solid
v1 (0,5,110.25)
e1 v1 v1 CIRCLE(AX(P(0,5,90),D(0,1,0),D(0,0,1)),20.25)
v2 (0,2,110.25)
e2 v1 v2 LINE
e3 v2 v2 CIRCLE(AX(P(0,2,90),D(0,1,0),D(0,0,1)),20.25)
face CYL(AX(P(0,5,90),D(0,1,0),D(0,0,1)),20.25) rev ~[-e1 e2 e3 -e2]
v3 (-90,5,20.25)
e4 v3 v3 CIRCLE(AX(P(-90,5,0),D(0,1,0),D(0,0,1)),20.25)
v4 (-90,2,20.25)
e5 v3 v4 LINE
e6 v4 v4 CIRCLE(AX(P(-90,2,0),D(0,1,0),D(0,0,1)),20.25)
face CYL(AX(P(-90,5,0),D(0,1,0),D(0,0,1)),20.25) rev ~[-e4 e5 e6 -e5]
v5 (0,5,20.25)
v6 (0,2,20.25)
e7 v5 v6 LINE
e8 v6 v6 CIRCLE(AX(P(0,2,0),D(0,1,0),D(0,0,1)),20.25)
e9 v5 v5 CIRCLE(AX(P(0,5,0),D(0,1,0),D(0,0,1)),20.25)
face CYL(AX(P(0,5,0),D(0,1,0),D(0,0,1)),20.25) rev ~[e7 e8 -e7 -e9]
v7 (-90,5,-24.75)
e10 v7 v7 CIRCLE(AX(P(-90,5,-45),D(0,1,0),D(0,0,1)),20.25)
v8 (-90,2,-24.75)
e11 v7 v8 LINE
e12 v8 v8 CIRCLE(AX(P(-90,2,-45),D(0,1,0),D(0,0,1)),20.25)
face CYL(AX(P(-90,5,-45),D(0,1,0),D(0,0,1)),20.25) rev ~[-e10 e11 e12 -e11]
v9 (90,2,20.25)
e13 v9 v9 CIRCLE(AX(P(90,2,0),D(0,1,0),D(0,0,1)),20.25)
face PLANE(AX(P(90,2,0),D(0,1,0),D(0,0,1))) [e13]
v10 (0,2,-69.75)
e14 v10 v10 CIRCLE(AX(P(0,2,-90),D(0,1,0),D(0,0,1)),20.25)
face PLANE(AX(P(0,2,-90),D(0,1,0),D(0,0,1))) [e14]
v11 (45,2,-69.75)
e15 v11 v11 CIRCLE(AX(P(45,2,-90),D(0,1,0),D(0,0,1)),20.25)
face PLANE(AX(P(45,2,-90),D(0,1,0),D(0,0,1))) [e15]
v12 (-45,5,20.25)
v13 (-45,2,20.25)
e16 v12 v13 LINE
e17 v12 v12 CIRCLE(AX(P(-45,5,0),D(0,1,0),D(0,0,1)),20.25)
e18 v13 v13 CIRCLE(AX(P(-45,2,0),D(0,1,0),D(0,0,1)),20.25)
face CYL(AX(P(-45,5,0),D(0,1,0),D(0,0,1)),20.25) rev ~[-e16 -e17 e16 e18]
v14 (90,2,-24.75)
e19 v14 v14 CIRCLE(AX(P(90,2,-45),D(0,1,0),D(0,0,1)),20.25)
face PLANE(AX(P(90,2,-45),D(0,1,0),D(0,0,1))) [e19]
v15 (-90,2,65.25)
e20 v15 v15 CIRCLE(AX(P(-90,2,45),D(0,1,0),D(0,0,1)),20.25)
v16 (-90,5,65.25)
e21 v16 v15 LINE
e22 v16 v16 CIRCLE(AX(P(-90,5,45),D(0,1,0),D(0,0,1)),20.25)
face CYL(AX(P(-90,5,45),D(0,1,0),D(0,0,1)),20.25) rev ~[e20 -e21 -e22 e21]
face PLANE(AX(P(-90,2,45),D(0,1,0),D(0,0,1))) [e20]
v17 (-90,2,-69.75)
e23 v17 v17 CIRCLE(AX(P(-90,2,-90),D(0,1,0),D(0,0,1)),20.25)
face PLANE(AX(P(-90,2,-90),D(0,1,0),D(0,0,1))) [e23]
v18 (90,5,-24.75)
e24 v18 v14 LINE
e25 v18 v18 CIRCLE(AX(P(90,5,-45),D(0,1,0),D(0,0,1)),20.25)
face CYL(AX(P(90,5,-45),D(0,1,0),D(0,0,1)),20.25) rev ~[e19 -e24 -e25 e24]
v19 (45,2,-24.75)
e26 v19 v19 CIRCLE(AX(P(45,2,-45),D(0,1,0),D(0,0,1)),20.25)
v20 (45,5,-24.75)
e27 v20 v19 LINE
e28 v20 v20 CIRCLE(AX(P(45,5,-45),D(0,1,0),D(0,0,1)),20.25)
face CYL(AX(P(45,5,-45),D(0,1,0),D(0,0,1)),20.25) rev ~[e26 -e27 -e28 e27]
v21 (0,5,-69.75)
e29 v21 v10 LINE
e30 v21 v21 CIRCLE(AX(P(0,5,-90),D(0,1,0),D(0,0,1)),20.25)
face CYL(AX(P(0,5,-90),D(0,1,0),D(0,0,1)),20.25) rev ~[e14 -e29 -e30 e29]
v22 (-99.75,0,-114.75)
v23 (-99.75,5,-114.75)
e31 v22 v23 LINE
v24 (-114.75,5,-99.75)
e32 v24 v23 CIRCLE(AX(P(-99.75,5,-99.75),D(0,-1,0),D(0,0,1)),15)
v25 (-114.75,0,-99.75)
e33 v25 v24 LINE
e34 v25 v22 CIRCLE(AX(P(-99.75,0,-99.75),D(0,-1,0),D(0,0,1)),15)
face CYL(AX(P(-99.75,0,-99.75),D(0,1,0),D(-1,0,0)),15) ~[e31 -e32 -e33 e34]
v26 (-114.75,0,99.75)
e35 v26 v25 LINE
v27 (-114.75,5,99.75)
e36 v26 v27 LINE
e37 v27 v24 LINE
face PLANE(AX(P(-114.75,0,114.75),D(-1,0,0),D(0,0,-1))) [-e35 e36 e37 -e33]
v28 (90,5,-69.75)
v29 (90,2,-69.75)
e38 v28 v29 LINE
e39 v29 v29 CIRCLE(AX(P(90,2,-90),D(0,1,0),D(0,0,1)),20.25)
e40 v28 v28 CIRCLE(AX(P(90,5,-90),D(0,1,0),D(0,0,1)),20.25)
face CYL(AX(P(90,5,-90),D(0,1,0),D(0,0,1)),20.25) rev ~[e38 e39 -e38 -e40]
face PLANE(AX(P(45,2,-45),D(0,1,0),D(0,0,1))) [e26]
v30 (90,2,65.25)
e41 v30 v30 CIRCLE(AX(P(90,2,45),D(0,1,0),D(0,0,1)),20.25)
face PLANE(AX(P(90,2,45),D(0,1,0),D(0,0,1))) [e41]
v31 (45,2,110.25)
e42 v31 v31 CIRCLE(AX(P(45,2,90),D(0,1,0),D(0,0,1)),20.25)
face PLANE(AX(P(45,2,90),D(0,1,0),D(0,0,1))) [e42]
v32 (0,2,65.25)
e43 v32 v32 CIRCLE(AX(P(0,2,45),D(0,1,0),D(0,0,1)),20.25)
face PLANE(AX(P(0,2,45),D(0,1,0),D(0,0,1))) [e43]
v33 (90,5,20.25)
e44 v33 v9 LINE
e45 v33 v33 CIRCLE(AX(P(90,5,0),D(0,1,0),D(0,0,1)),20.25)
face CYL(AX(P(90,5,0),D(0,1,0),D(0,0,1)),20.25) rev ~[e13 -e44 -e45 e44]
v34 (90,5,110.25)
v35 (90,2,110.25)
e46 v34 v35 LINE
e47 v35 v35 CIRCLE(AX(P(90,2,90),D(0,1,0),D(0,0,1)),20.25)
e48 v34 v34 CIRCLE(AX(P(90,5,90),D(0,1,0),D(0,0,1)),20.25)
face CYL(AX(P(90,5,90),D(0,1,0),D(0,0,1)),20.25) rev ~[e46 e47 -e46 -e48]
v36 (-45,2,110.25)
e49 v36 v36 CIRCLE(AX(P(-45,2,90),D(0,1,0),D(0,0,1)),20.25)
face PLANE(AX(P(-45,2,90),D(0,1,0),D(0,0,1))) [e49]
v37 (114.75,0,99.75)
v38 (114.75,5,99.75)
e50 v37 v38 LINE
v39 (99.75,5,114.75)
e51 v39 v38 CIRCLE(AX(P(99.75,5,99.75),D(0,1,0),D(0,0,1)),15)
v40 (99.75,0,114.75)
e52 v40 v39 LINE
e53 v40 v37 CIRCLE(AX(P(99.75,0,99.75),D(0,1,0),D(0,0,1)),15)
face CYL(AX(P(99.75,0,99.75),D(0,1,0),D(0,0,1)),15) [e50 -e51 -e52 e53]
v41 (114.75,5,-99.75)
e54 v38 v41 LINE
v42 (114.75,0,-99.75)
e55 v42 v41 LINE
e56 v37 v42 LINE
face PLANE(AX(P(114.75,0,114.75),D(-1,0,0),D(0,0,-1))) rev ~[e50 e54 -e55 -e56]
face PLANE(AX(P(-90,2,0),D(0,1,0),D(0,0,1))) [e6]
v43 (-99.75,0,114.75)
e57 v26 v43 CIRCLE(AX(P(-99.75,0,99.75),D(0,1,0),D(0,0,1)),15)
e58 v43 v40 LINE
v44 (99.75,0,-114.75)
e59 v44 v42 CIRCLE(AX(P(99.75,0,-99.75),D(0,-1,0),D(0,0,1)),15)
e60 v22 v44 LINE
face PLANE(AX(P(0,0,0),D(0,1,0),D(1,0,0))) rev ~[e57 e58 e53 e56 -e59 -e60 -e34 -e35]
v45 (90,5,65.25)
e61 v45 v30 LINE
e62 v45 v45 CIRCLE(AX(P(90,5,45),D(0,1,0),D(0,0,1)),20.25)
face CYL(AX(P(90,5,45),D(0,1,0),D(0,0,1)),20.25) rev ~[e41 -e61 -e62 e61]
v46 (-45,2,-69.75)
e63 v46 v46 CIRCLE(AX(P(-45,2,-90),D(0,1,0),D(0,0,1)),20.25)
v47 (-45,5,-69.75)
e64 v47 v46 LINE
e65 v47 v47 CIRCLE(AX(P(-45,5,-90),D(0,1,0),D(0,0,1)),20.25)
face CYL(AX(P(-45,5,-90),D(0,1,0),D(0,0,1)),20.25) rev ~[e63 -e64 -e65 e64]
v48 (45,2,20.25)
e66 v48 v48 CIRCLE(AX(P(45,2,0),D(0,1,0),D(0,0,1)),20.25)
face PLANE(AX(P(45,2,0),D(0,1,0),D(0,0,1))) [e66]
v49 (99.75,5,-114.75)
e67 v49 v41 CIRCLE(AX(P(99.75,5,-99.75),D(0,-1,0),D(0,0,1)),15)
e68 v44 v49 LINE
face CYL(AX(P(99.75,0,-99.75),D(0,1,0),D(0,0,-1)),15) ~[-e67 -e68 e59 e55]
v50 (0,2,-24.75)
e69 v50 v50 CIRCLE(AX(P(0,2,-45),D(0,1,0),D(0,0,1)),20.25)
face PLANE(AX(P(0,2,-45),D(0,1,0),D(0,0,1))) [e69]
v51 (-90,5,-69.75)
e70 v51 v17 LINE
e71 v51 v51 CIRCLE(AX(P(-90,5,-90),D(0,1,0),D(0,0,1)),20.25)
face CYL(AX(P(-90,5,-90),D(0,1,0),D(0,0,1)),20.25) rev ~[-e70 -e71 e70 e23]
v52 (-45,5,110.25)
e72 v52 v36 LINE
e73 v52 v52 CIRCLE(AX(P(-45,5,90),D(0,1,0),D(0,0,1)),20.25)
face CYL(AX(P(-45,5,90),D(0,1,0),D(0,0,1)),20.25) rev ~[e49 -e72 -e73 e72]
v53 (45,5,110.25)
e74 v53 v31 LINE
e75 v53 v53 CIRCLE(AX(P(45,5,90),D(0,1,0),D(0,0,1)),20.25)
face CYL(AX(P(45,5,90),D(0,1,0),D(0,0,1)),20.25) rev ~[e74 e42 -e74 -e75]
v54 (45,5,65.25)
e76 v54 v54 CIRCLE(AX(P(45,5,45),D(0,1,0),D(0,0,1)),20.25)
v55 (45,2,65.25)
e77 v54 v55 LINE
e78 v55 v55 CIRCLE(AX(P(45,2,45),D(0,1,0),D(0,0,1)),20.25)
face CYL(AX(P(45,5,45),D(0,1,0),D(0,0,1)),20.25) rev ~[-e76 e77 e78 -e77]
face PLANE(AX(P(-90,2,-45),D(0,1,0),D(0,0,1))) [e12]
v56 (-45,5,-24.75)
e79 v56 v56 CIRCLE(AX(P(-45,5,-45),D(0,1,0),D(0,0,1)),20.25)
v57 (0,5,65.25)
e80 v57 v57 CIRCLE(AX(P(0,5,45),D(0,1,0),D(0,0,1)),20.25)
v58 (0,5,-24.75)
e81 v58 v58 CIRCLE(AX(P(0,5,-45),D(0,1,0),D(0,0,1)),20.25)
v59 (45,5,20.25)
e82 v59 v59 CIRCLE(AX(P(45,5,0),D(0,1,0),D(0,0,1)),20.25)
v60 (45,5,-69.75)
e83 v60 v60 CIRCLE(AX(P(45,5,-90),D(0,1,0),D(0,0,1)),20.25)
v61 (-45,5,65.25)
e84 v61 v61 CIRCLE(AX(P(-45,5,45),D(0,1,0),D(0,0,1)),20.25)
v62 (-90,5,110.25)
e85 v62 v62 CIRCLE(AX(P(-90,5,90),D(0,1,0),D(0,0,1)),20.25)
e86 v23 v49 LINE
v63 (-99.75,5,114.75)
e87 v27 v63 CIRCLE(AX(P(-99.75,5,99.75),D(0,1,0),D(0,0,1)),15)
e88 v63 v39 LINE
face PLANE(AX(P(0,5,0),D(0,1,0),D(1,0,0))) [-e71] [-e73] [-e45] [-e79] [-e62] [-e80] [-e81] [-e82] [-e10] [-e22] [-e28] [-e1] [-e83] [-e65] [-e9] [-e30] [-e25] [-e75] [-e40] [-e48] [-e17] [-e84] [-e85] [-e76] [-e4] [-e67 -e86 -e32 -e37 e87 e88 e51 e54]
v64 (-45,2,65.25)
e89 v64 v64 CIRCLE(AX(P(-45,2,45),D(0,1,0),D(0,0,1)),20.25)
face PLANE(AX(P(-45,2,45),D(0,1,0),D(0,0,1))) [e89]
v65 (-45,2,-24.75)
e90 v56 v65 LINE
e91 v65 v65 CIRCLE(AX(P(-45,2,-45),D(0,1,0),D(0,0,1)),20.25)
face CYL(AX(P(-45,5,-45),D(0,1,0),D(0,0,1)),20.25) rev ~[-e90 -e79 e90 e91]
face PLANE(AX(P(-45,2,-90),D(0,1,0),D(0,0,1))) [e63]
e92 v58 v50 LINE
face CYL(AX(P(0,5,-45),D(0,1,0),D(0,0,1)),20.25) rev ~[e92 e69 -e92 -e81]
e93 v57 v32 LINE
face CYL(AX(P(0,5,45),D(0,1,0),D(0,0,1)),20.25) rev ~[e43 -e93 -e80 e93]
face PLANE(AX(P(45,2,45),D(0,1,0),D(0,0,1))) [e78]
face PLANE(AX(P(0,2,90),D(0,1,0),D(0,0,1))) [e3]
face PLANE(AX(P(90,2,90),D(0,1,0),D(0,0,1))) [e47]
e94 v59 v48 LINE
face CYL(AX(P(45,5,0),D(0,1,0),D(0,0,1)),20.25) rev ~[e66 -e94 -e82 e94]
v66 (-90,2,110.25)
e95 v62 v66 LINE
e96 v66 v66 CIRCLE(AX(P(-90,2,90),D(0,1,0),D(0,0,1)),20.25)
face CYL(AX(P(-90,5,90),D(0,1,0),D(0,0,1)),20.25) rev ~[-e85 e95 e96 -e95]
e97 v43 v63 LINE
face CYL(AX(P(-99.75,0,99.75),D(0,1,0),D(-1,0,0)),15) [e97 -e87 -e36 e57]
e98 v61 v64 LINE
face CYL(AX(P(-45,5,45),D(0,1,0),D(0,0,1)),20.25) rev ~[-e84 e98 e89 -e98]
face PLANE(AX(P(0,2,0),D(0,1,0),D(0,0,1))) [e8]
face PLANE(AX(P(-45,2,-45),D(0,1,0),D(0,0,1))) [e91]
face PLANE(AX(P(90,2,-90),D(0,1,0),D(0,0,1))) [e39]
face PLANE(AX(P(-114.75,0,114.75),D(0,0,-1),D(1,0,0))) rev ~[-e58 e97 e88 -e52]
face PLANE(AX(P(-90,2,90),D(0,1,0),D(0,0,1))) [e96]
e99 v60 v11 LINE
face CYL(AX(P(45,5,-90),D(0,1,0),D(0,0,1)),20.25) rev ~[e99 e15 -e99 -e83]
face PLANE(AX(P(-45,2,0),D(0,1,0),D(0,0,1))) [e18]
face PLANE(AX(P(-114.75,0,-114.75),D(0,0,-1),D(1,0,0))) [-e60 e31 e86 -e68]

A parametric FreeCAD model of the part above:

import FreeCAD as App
import Part
import Sketcher


def edges_at(feature, points):
    """Names of the edges that pass closest to the given points."""
    edges = feature.Shape.Edges
    near = lambda p: min(range(len(edges)), key=lambda i: edges[i].distToShape(Part.Vertex(*p))[0])
    return sorted({f"Edge{near(p) + 1}" for p in points})


def add_polygon(sketch, points):
    """Adds a closed chain of lines whose ends are joined by coincident constraints."""
    first, n = sketch.GeometryCount, len(points)
    for a, b in zip(points, points[1:] + points[:1]):
        sketch.addGeometry(Part.LineSegment(App.Vector(*a, 0), App.Vector(*b, 0)), False)
    for i in range(n):
        sketch.addConstraint(Sketcher.Constraint("Coincident", first + i, 2, first + (i + 1) % n, 1))

doc = App.newDocument("Part")
body = doc.addObject("PartDesign::Body", "Body")

# Sketch on XZ plane
sketch1 = body.newObject("Sketcher::SketchObject", "Sketch")
sketch1.AttachmentSupport = (doc.getObject("XZ_Plane"), [""])
sketch1.MapMode = "FlatFace"
add_polygon(sketch1, [(-115, -115), (-115, 115), (115, 115), (115, -115)])  # lines 0-3
sketch1.addConstraint(Sketcher.Constraint("Vertical", 0))
sketch1.addConstraint(Sketcher.Constraint("Horizontal", 1))
sketch1.addConstraint(Sketcher.Constraint("Vertical", 2))
sketch1.addConstraint(Sketcher.Constraint("Horizontal", 3))
sketch1.addConstraint(Sketcher.Constraint("Symmetric", 0, 2, 2, 2, -1, 1))
sketch1.addConstraint(Sketcher.Constraint("Equal", 3, 0))
sketch1.addConstraint(Sketcher.Constraint("DistanceX", 1, 1, 1, 2, 229.5))
pad1 = body.newObject("PartDesign::Pad", "Pad")
pad1.Profile = sketch1
pad1.Length = 5
pad1.Reversed = True

# Sketch on XZ plane
sketch2 = body.newObject("Sketcher::SketchObject", "Sketch001")
sketch2.AttachmentSupport = (doc.getObject("XZ_Plane"), [""])
sketch2.MapMode = "FlatFace"
sketch2.AttachmentOffset = App.Placement(App.Vector(0, 0, -5), App.Rotation())
sketch2.addGeometry(Part.Circle(App.Vector(-90, -90, 0), App.Vector(0, 0, 1), 20), False)
sketch2.addGeometry(Part.Circle(App.Vector(-45, -90, 0), App.Vector(0, 0, 1), 20), False)
sketch2.addGeometry(Part.Circle(App.Vector(0, -90, 0), App.Vector(0, 0, 1), 20), False)
sketch2.addGeometry(Part.Circle(App.Vector(45, -90, 0), App.Vector(0, 0, 1), 20), False)
sketch2.addGeometry(Part.Circle(App.Vector(90, -90, 0), App.Vector(0, 0, 1), 20), False)
sketch2.addGeometry(Part.Circle(App.Vector(-45, -45, 0), App.Vector(0, 0, 1), 20), False)
sketch2.addGeometry(Part.Circle(App.Vector(0, -45, 0), App.Vector(0, 0, 1), 20), False)
sketch2.addGeometry(Part.Circle(App.Vector(45, -45, 0), App.Vector(0, 0, 1), 20), False)
sketch2.addGeometry(Part.Circle(App.Vector(90, -45, 0), App.Vector(0, 0, 1), 20), False)
sketch2.addGeometry(Part.Circle(App.Vector(-45, 0, 0), App.Vector(0, 0, 1), 20), False)
sketch2.addGeometry(Part.Circle(App.Vector(0, 0, 0), App.Vector(0, 0, 1), 20), False)
sketch2.addGeometry(Part.Circle(App.Vector(45, 0, 0), App.Vector(0, 0, 1), 20), False)
sketch2.addGeometry(Part.Circle(App.Vector(90, 0, 0), App.Vector(0, 0, 1), 20), False)
sketch2.addGeometry(Part.Circle(App.Vector(-45, 45, 0), App.Vector(0, 0, 1), 20), False)
sketch2.addGeometry(Part.Circle(App.Vector(0, 45, 0), App.Vector(0, 0, 1), 20), False)
sketch2.addGeometry(Part.Circle(App.Vector(45, 45, 0), App.Vector(0, 0, 1), 20), False)
sketch2.addGeometry(Part.Circle(App.Vector(90, 45, 0), App.Vector(0, 0, 1), 20), False)
sketch2.addGeometry(Part.Circle(App.Vector(-45, 90, 0), App.Vector(0, 0, 1), 20), False)
sketch2.addGeometry(Part.Circle(App.Vector(0, 90, 0), App.Vector(0, 0, 1), 20), False)
sketch2.addGeometry(Part.Circle(App.Vector(45, 90, 0), App.Vector(0, 0, 1), 20), False)
sketch2.addGeometry(Part.Circle(App.Vector(90, 90, 0), App.Vector(0, 0, 1), 20), False)
sketch2.addGeometry(Part.Circle(App.Vector(-90, -45, 0), App.Vector(0, 0, 1), 20), False)
sketch2.addGeometry(Part.Circle(App.Vector(-90, 0, 0), App.Vector(0, 0, 1), 20), False)
sketch2.addGeometry(Part.Circle(App.Vector(-90, 45, 0), App.Vector(0, 0, 1), 20), False)
sketch2.addGeometry(Part.Circle(App.Vector(-90, 90, 0), App.Vector(0, 0, 1), 20), False)
sketch2.addConstraint(Sketcher.Constraint("Coincident", 10, 3, -1, 1))
sketch2.addConstraint(Sketcher.Constraint("Equal", 0, 1))
sketch2.addConstraint(Sketcher.Constraint("Equal", 1, 2))
sketch2.addConstraint(Sketcher.Constraint("Equal", 2, 3))
sketch2.addConstraint(Sketcher.Constraint("Equal", 3, 4))
sketch2.addConstraint(Sketcher.Constraint("Equal", 4, 5))
sketch2.addConstraint(Sketcher.Constraint("Equal", 5, 6))
sketch2.addConstraint(Sketcher.Constraint("Equal", 6, 7))
sketch2.addConstraint(Sketcher.Constraint("Equal", 7, 8))
sketch2.addConstraint(Sketcher.Constraint("Equal", 8, 9))
sketch2.addConstraint(Sketcher.Constraint("Equal", 9, 10))
sketch2.addConstraint(Sketcher.Constraint("Equal", 10, 11))
sketch2.addConstraint(Sketcher.Constraint("Equal", 11, 12))
sketch2.addConstraint(Sketcher.Constraint("Equal", 12, 13))
sketch2.addConstraint(Sketcher.Constraint("Equal", 13, 14))
sketch2.addConstraint(Sketcher.Constraint("Equal", 14, 15))
sketch2.addConstraint(Sketcher.Constraint("Equal", 15, 16))
sketch2.addConstraint(Sketcher.Constraint("Equal", 16, 17))
sketch2.addConstraint(Sketcher.Constraint("Equal", 17, 18))
sketch2.addConstraint(Sketcher.Constraint("Equal", 18, 19))
sketch2.addConstraint(Sketcher.Constraint("Equal", 19, 20))
sketch2.addConstraint(Sketcher.Constraint("Equal", 20, 21))
sketch2.addConstraint(Sketcher.Constraint("Equal", 21, 22))
sketch2.addConstraint(Sketcher.Constraint("Equal", 22, 23))
sketch2.addConstraint(Sketcher.Constraint("Equal", 23, 24))
sketch2.addConstraint(Sketcher.Constraint("Symmetric", 9, 3, 11, 3, -1, 1))
sketch2.addConstraint(Sketcher.Constraint("Symmetric", 7, 3, 13, 3, -1, 1))
sketch2.addConstraint(Sketcher.Constraint("Symmetric", 6, 3, 14, 3, -1, 1))
sketch2.addConstraint(Sketcher.Constraint("Symmetric", 5, 3, 15, 3, -1, 1))
sketch2.addConstraint(Sketcher.Constraint("Symmetric", 3, 3, 17, 3, -1, 1))
sketch2.addConstraint(Sketcher.Constraint("Symmetric", 2, 3, 18, 3, -1, 1))
sketch2.addConstraint(Sketcher.Constraint("Symmetric", 1, 3, 19, 3, -1, 1))
sketch2.addConstraint(Sketcher.Constraint("Symmetric", 0, 3, 20, 3, -1, 1))
sketch2.addConstraint(Sketcher.Constraint("Symmetric", 16, 3, 21, 3, -1, 1))
sketch2.addConstraint(Sketcher.Constraint("Symmetric", 12, 3, 22, 3, -1, 1))
sketch2.addConstraint(Sketcher.Constraint("Symmetric", 8, 3, 23, 3, -1, 1))
sketch2.addConstraint(Sketcher.Constraint("Symmetric", 4, 3, 24, 3, -1, 1))
sketch2.addConstraint(Sketcher.Constraint("Symmetric", 1, 3, 3, 3, -2))
sketch2.addConstraint(Sketcher.Constraint("Symmetric", 0, 3, 4, 3, -2))
sketch2.addConstraint(Sketcher.Constraint("Symmetric", 5, 3, 7, 3, -2))
sketch2.addConstraint(Sketcher.Constraint("Symmetric", 8, 3, 21, 3, -2))
sketch2.addConstraint(Sketcher.Constraint("PointOnObject", 2, 3, -2))
sketch2.addConstraint(Sketcher.Constraint("PointOnObject", 6, 3, -2))
sketch2.addConstraint(Sketcher.Constraint("PointOnObject", 9, 3, -1))
sketch2.addConstraint(Sketcher.Constraint("PointOnObject", 12, 3, -1))
sketch2.addConstraint(Sketcher.Constraint("Horizontal", 0, 3, 1, 3))
sketch2.addConstraint(Sketcher.Constraint("Horizontal", 1, 3, 2, 3))
sketch2.addConstraint(Sketcher.Constraint("Horizontal", 5, 3, 6, 3))
sketch2.addConstraint(Sketcher.Constraint("Horizontal", 7, 3, 8, 3))
sketch2.addConstraint(Sketcher.Constraint("Vertical", 1, 3, 5, 3))
sketch2.addConstraint(Sketcher.Constraint("Vertical", 4, 3, 8, 3))
sketch2.addConstraint(Sketcher.Constraint("Vertical", 5, 3, 9, 3))
sketch2.addConstraint(Sketcher.Constraint("Vertical", 8, 3, 12, 3))
sketch2.addConstraint(Sketcher.Constraint("Diameter", 0, 40.5))
sketch2.addConstraint(Sketcher.Constraint("DistanceX", 0, 3, -1, 1, 90.0))
sketch2.addConstraint(Sketcher.Constraint("DistanceY", 0, 3, -1, 1, 90.0))
sketch2.addConstraint(Sketcher.Constraint("DistanceX", 1, 3, -1, 1, 45.0))
sketch2.addConstraint(Sketcher.Constraint("DistanceY", 5, 3, -1, 1, 45.0))
pocket1 = body.newObject("PartDesign::Pocket", "Pocket")
pocket1.Profile = sketch2
pocket1.Length = 3
pocket1.Reversed = True
doc.recompute()

fillet = body.newObject("PartDesign::Fillet", "Fillet")
fillet.Base = (pocket1, edges_at(pocket1, [
    (114.75, 2.5, 114.75),
    (-114.75, 2.5, 114.75),
    (-114.75, 2.5, -114.75),
    (114.75, 2.5, -114.75),
]))
fillet.Radius = 15

doc.recompute()
